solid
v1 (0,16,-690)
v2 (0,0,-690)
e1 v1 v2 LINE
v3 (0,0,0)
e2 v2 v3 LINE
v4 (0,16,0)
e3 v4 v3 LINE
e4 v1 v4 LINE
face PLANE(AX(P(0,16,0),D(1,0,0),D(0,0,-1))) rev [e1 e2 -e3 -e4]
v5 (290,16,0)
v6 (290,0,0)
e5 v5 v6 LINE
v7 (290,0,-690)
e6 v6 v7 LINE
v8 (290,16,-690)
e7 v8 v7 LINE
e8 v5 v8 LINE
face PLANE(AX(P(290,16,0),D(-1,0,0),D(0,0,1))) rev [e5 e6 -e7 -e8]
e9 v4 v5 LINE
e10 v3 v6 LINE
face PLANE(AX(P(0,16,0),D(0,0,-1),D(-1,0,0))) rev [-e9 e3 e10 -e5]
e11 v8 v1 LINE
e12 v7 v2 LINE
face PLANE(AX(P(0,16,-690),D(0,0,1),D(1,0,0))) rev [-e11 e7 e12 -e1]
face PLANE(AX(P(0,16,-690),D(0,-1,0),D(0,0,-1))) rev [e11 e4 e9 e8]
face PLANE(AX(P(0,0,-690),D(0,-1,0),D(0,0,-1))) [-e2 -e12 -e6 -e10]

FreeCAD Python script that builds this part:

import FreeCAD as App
import Part
import Sketcher
from FreeCAD import Vector


def add_polygon(sketch, points):
    """Adds a closed chain of lines whose ends are joined by coincident constraints."""
    first, n = sketch.GeometryCount, len(points)
    for a, b in zip(points, points[1:] + points[:1]):
        sketch.addGeometry(Part.LineSegment(App.Vector(*a, 0), App.Vector(*b, 0)), False)
    for i in range(n):
        sketch.addConstraint(Sketcher.Constraint("Coincident", first + i, 2, first + (i + 1) % n, 1))

doc = App.newDocument("Part")
body = doc.addObject("PartDesign::Body", "Body")

sketch1 = body.newObject("Sketcher::SketchObject", "Sketch")
sketch1.AttachmentSupport = (doc.getObject("XZ_Plane"), [""])
sketch1.MapMode = "FlatFace"
add_polygon(sketch1, [(0, -690), (0, 0), (290, 0), (290, -690)])
sketch1.addConstraint(Sketcher.Constraint("Vertical", 0))
sketch1.addConstraint(Sketcher.Constraint("Horizontal", 1))
sketch1.addConstraint(Sketcher.Constraint("Vertical", 2))
sketch1.addConstraint(Sketcher.Constraint("Horizontal", 3))
sketch1.addConstraint(Sketcher.Constraint("Coincident", 0, 2, -1, 1))
sketch1.addConstraint(Sketcher.Constraint("DistanceX", 1, 1, 1, 2, 290.0))
sketch1.addConstraint(Sketcher.Constraint("DistanceY", 0, 1, 0, 2, 690.0))
pad1 = body.newObject("PartDesign::Pad", "Pad")
pad1.Profile = sketch1
pad1.Length = 16
pad1.Reversed = True

doc.recompute()
